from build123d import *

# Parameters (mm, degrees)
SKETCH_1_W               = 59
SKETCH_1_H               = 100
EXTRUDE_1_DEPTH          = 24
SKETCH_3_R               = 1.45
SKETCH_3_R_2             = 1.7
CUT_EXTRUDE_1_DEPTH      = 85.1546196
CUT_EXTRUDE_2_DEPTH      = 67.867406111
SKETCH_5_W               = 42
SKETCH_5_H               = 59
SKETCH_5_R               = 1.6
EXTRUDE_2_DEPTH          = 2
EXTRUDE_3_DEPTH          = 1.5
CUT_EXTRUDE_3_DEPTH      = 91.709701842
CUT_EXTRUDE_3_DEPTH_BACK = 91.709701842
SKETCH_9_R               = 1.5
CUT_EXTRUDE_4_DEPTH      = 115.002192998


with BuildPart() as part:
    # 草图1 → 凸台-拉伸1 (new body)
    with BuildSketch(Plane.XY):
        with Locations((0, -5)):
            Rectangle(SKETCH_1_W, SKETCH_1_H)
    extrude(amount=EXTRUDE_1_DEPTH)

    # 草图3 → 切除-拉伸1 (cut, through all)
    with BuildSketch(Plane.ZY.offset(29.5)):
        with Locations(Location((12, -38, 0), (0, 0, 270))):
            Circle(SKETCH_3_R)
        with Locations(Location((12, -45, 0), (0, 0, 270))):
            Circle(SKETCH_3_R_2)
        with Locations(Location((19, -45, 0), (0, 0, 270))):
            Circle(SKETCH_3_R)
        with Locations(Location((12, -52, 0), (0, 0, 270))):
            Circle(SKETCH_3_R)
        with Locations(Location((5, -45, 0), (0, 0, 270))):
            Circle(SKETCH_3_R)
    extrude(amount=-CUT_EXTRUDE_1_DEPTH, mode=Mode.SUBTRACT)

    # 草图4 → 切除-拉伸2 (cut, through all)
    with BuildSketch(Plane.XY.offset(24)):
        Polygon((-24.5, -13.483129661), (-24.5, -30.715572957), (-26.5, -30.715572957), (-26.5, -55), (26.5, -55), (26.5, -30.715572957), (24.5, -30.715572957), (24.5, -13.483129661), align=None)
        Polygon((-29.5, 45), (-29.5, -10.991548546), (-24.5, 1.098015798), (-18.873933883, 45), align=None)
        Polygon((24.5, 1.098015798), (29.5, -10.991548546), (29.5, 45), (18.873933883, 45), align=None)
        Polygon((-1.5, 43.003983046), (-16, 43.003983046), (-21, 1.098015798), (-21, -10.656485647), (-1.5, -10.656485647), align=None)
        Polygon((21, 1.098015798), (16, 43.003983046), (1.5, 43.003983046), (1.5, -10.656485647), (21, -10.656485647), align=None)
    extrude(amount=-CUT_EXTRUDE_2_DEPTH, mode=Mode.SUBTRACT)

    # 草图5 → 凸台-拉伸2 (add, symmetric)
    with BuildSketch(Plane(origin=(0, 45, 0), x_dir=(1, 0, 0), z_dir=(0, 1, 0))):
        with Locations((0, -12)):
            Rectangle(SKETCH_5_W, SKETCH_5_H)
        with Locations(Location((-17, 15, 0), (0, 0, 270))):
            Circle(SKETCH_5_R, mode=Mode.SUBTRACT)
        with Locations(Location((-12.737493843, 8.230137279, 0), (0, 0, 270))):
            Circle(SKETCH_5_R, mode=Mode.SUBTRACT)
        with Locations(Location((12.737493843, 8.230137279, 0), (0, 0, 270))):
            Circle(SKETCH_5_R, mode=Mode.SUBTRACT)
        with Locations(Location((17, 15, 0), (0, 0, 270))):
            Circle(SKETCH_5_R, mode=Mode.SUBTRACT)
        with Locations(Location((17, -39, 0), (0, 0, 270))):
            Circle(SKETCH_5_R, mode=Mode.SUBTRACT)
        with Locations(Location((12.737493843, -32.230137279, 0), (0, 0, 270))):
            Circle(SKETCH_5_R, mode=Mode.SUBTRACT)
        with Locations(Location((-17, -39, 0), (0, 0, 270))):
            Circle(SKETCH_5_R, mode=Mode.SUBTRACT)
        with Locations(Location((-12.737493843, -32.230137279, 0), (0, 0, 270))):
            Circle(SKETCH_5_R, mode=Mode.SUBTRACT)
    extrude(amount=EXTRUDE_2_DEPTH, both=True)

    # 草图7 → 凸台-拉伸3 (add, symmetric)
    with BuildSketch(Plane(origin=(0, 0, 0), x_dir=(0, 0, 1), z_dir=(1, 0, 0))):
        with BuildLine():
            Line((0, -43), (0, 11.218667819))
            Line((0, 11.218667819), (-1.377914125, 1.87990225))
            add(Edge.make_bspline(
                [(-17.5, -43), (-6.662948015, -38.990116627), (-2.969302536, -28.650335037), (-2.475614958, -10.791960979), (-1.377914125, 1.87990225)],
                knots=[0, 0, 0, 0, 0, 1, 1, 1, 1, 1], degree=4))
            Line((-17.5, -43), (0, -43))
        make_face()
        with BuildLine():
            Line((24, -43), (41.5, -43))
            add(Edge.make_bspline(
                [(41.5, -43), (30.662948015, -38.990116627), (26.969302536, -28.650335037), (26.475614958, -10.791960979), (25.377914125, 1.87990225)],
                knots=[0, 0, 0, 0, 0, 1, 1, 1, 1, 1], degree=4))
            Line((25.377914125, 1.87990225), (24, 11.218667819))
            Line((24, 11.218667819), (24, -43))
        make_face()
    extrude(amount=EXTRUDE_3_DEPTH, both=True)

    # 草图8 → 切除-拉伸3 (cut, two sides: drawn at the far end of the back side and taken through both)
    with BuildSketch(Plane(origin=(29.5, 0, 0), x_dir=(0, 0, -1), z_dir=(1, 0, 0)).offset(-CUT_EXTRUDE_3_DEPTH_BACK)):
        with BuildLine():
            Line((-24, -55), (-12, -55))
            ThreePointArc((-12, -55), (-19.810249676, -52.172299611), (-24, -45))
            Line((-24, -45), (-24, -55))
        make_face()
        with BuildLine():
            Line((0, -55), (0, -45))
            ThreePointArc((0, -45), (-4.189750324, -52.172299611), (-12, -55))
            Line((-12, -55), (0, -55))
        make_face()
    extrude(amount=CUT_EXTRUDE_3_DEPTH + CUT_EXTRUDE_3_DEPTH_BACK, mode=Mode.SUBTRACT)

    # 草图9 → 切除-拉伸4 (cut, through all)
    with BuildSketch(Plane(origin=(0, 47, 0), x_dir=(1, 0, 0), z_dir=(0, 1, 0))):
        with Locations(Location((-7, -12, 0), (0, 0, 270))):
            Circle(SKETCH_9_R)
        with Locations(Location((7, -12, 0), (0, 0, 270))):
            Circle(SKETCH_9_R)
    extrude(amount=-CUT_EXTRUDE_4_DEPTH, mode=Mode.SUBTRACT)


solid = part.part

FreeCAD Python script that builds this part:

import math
import FreeCAD as App
import Part
import Sketcher


def add_polygon(sketch, points):
    """Adds a closed chain of lines whose ends are joined by coincident constraints."""
    first, n = sketch.GeometryCount, len(points)
    for a, b in zip(points, points[1:] + points[:1]):
        sketch.addGeometry(Part.LineSegment(App.Vector(*a, 0), App.Vector(*b, 0)), False)
    for i in range(n):
        sketch.addConstraint(Sketcher.Constraint("Coincident", first + i, 2, first + (i + 1) % n, 1))

doc = App.newDocument("Part")
body = doc.addObject("PartDesign::Body", "Body")

# Sketch on XY plane
sketch1 = body.newObject("Sketcher::SketchObject", "Sketch")
sketch1.AttachmentSupport = (doc.getObject("XY_Plane"), [""])
sketch1.MapMode = "FlatFace"
add_polygon(sketch1, [(-29.5, 45), (-29.5, -55), (29.5, -55), (29.5, 45)])  # lines 0-3
sketch1.addConstraint([
    Sketcher.Constraint("Vertical", 0),
    Sketcher.Constraint("Horizontal", 1),
    Sketcher.Constraint("Vertical", 2),
    Sketcher.Constraint("Horizontal", 3),
    Sketcher.Constraint("DistanceX", 1, 1, 1, 2, 59.0),
    Sketcher.Constraint("DistanceY", 0, 2, 0, 1, 100.0),
    Sketcher.Constraint("DistanceY", 0, 2, -1, 1, 55.0),
    Sketcher.Constraint("DistanceX", 0, 2, -1, 1, 29.5),
])
pad1 = body.newObject("PartDesign::Pad", "Pad")
pad1.Profile = sketch1
pad1.Length = 24

# Sketch on YZ plane
sketch2 = body.newObject("Sketcher::SketchObject", "Sketch001")
sketch2.AttachmentSupport = (doc.getObject("YZ_Plane"), [""])
sketch2.MapMode = "FlatFace"
sketch2.AttachmentOffset = App.Placement(App.Vector(0, 0, -29.5), App.Rotation())
sketch2.addGeometry([
    Part.Circle(App.Vector(-38, 12, 0), App.Vector(0, 0, 1), 1.45),  # 0
    Part.Circle(App.Vector(-45, 12, 0), App.Vector(0, 0, 1), 1.7),  # 1
    Part.Circle(App.Vector(-45, 19, 0), App.Vector(0, 0, 1), 1.45),  # 2
    Part.Circle(App.Vector(-52, 12, 0), App.Vector(0, 0, 1), 1.45),  # 3
    Part.Circle(App.Vector(-45, 5, 0), App.Vector(0, 0, 1), 1.45),  # 4
], False)
sketch2.addConstraint([
    Sketcher.Constraint("Equal", 0, 2),
    Sketcher.Constraint("Equal", 2, 3),
    Sketcher.Constraint("Equal", 3, 4),
    Sketcher.Constraint("Horizontal", 0, 3, 1, 3),
    Sketcher.Constraint("Horizontal", 1, 3, 3, 3),
    Sketcher.Constraint("Vertical", 1, 3, 2, 3),
    Sketcher.Constraint("Vertical", 2, 3, 4, 3),
    Sketcher.Constraint("Diameter", 0, 2.9),
    Sketcher.Constraint("Diameter", 1, 3.4),
    Sketcher.Constraint("DistanceX", 0, 3, -1, 1, 38.0),
    Sketcher.Constraint("DistanceY", -1, 1, 0, 3, 12.0),
    Sketcher.Constraint("DistanceX", 1, 3, -1, 1, 45.0),
    Sketcher.Constraint("DistanceY", -1, 1, 2, 3, 19.0),
    Sketcher.Constraint("DistanceX", 3, 3, -1, 1, 52.0),
    Sketcher.Constraint("DistanceY", -1, 1, 4, 3, 5.0),
])
pocket1 = body.newObject("PartDesign::Pocket", "Pocket")
pocket1.Profile = sketch2
pocket1.Type = "ThroughAll"
pocket1.Reversed = True

# Sketch on XY plane
sketch3 = body.newObject("Sketcher::SketchObject", "Sketch002")
sketch3.AttachmentSupport = (doc.getObject("XY_Plane"), [""])
sketch3.MapMode = "FlatFace"
sketch3.AttachmentOffset = App.Placement(App.Vector(0, 0, 24), App.Rotation())
add_polygon(sketch3, [(-24.5, -13.48313), (-24.5, -30.715573), (-26.5, -30.715573), (-26.5, -55), (26.5, -55), (26.5, -30.715573), (24.5, -30.715573), (24.5, -13.48313)])  # lines 0-7
add_polygon(sketch3, [(-29.5, 45), (-29.5, -10.991549), (-24.5, 1.098016), (-18.873934, 45)])  # lines 8-11
add_polygon(sketch3, [(24.5, 1.098016), (29.5, -10.991549), (29.5, 45), (18.873934, 45)])  # lines 12-15
add_polygon(sketch3, [(-1.5, 43.003983), (-16, 43.003983), (-21, 1.098016), (-21, -10.656486), (-1.5, -10.656486)])  # lines 16-20
add_polygon(sketch3, [(21, 1.098016), (16, 43.003983), (1.5, 43.003983), (1.5, -10.656486), (21, -10.656486)])  # lines 21-25
sketch3.addConstraint([
    Sketcher.Constraint("Vertical", 0),
    Sketcher.Constraint("Horizontal", 1),
    Sketcher.Constraint("Vertical", 2),
    Sketcher.Constraint("Horizontal", 3),
    Sketcher.Constraint("Vertical", 4),
    Sketcher.Constraint("Horizontal", 5),
    Sketcher.Constraint("Vertical", 6),
    Sketcher.Constraint("Horizontal", 7),
    Sketcher.Constraint("Vertical", 8),
    Sketcher.Constraint("Horizontal", 11),
    Sketcher.Constraint("Vertical", 13),
    Sketcher.Constraint("Horizontal", 14),
    Sketcher.Constraint("Horizontal", 16),
    Sketcher.Constraint("Vertical", 18),
    Sketcher.Constraint("Horizontal", 19),
    Sketcher.Constraint("Vertical", 20),
    Sketcher.Constraint("Horizontal", 22),
    Sketcher.Constraint("Vertical", 23),
    Sketcher.Constraint("Horizontal", 24),
    Sketcher.Constraint("Vertical", 25),
    Sketcher.Constraint("Symmetric", 1, 2, 4, 2, -2),
    Sketcher.Constraint("Symmetric", 8, 2, 12, 2, -2),
    Sketcher.Constraint("Symmetric", 10, 2, 14, 2, -2),
    Sketcher.Constraint("Symmetric", 9, 2, 15, 2, -2),
    Sketcher.Constraint("Symmetric", 16, 2, 21, 2, -2),
    Sketcher.Constraint("Symmetric", 19, 2, 23, 2, -2),
    Sketcher.Constraint("Symmetric", 17, 2, 25, 2, -2),
    Sketcher.Constraint("Horizontal", 15, 2, 17, 2),
    Sketcher.Constraint("Vertical", 7, 2, 9, 2),
    Sketcher.Constraint("Vertical", 6, 2, 15, 2),
    Sketcher.Constraint("DistanceX", 1, 2, 1, 1, 2.0),
    Sketcher.Constraint("DistanceX", 3, 1, 3, 2, 53.0),
    Sketcher.Constraint("DistanceX", 16, 2, 16, 1, 14.5),
    Sketcher.Constraint("DistanceX", 19, 1, 19, 2, 19.5),
    Sketcher.Constraint("DistanceY", 2, 2, -1, 1, 55.0),
    Sketcher.Constraint("DistanceY", -1, 1, 10, 2, 45.0),
    Sketcher.Constraint("DistanceX", 16, 2, -1, 1, 16.0),
    Sketcher.Constraint("DistanceX", 8, 2, 7, 2, 5.0),
    Sketcher.Constraint("DistanceY", 18, 2, 18, 1, 11.754501),
    Sketcher.Constraint("Distance", 17, 42.2032),
    Sketcher.Constraint("DistanceY", 8, 2, 8, 1, 55.991549),
    Sketcher.Constraint("Distance", 9, 13.08272),
    Sketcher.Constraint("Distance", 10, 44.261008),
    Sketcher.Constraint("DistanceY", 0, 2, 0, 1, 17.232443),
    Sketcher.Constraint("DistanceY", 2, 2, 2, 1, 24.284427),
])
pocket2 = body.newObject("PartDesign::Pocket", "Pocket001")
pocket2.Profile = sketch3
pocket2.Type = "ThroughAll"

# Sketch on XZ plane
sketch4 = body.newObject("Sketcher::SketchObject", "Sketch003")
sketch4.AttachmentSupport = (doc.getObject("XZ_Plane"), [""])
sketch4.MapMode = "FlatFace"
sketch4.AttachmentOffset = App.Placement(App.Vector(0, 0, -45), App.Rotation())
add_polygon(sketch4, [(-21, -17.5), (-21, 41.5), (21, 41.5), (21, -17.5)])  # lines 0-3
sketch4.addGeometry(Part.Circle(App.Vector(-17, 39, 0), App.Vector(0, 0, 1), 1.6), False)  # 4
sketch4.addGeometry(Part.Circle(App.Vector(-12.737494, 32.230137, 0), App.Vector(0, 0, 1), 1.6), False)  # 5
sketch4.addGeometry(Part.Circle(App.Vector(17, 39, 0), App.Vector(0, 0, 1), 1.6), False)  # 6
sketch4.addGeometry(Part.Circle(App.Vector(12.737494, 32.230137, 0), App.Vector(0, 0, 1), 1.6), False)  # 7
sketch4.addGeometry(Part.Circle(App.Vector(-12.737494, -8.230137, 0), App.Vector(0, 0, 1), 1.6), False)  # 8
sketch4.addGeometry(Part.Circle(App.Vector(-17, -15, 0), App.Vector(0, 0, 1), 1.6), False)  # 9
sketch4.addGeometry(Part.Circle(App.Vector(12.737494, -8.230137, 0), App.Vector(0, 0, 1), 1.6), False)  # 10
sketch4.addGeometry(Part.Circle(App.Vector(17, -15, 0), App.Vector(0, 0, 1), 1.6), False)  # 11
sketch4.addConstraint([
    Sketcher.Constraint("Vertical", 0),
    Sketcher.Constraint("Horizontal", 1),
    Sketcher.Constraint("Vertical", 2),
    Sketcher.Constraint("Horizontal", 3),
    Sketcher.Constraint("Equal", 4, 5),
    Sketcher.Constraint("Equal", 5, 6),
    Sketcher.Constraint("Equal", 6, 7),
    Sketcher.Constraint("Equal", 7, 8),
    Sketcher.Constraint("Equal", 8, 9),
    Sketcher.Constraint("Equal", 9, 10),
    Sketcher.Constraint("Equal", 10, 11),
    Sketcher.Constraint("Symmetric", 4, 3, 6, 3, -2),
    Sketcher.Constraint("Symmetric", 5, 3, 7, 3, -2),
    Sketcher.Constraint("Symmetric", 8, 3, 10, 3, -2),
    Sketcher.Constraint("Symmetric", 9, 3, 11, 3, -2),
    Sketcher.Constraint("Vertical", 5, 3, 8, 3),
    Sketcher.Constraint("Vertical", 4, 3, 9, 3),
    Sketcher.Constraint("Diameter", 4, 3.2),
    Sketcher.Constraint("DistanceX", 1, 1, 1, 2, 42.0),
    Sketcher.Constraint("DistanceY", 0, 1, 0, 2, 59.0),
    Sketcher.Constraint("DistanceX", 4, 3, -1, 1, 17.0),
    Sketcher.Constraint("DistanceY", -1, 1, 4, 3, 39.0),
    Sketcher.Constraint("DistanceY", 9, 3, -1, 1, 15.0),
    Sketcher.Constraint("DistanceX", 0, 2, -1, 1, 21.0),
    Sketcher.Constraint("DistanceY", -1, 1, 0, 2, 41.5),
    Sketcher.Constraint("DistanceX", 5, 3, -1, 1, 12.737494),
    Sketcher.Constraint("DistanceY", -1, 1, 5, 3, 32.230137),
    Sketcher.Constraint("DistanceY", 8, 3, -1, 1, 8.230137),
])
pad2 = body.newObject("PartDesign::Pad", "Pad001")
pad2.Profile = sketch4
pad2.Length = 4
pad2.Midplane = True

# Sketch on YZ plane
sketch5 = body.newObject("Sketcher::SketchObject", "Sketch004")
sketch5.AttachmentSupport = (doc.getObject("YZ_Plane"), [""])
sketch5.MapMode = "FlatFace"
sketch5.addGeometry([
    Part.LineSegment(App.Vector(43, 0, 0), App.Vector(-11.218668, 0, 0)),  # 0
    Part.LineSegment(App.Vector(-11.218668, 0, 0), App.Vector(-1.879902, -1.377914, 0)),  # 1
    Part.BSplineCurve([App.Vector(43, -17.5, 0), App.Vector(38.990117, -6.662948, 0), App.Vector(28.650335, -2.969303, 0), App.Vector(10.791961, -2.475615, 0), App.Vector(-1.879902, -1.377914, 0)], [5, 5], [0, 1], False, 4, [1, 1, 1, 1, 1], False),  # 2
    Part.LineSegment(App.Vector(43, -17.5, 0), App.Vector(43, 0, 0)),  # 3
    Part.LineSegment(App.Vector(43, 24, 0), App.Vector(43, 41.5, 0)),  # 4
    Part.BSplineCurve([App.Vector(43, 41.5, 0), App.Vector(38.990117, 30.662948, 0), App.Vector(28.650335, 26.969303, 0), App.Vector(10.791961, 26.475615, 0), App.Vector(-1.879902, 25.377914, 0)], [5, 5], [0, 1], False, 4, [1, 1, 1, 1, 1], False),  # 5
    Part.LineSegment(App.Vector(-1.879902, 25.377914, 0), App.Vector(-11.218668, 24, 0)),  # 6
    Part.LineSegment(App.Vector(-11.218668, 24, 0), App.Vector(43, 24, 0)),  # 7
], False)
sketch5.addConstraint([
    Sketcher.Constraint("Block", 2),
    Sketcher.Constraint("Block", 5),
    Sketcher.Constraint("Coincident", 0, 2, 1, 1),
    Sketcher.Constraint("Coincident", 1, 2, 2, 2),
    Sketcher.Constraint("Coincident", 2, 1, 3, 1),
    Sketcher.Constraint("Coincident", 3, 2, 0, 1),
    Sketcher.Constraint("Coincident", 4, 2, 5, 1),
    Sketcher.Constraint("Coincident", 5, 2, 6, 1),
    Sketcher.Constraint("Coincident", 6, 2, 7, 1),
    Sketcher.Constraint("Coincident", 7, 2, 4, 1),
    Sketcher.Constraint("Horizontal", 0),
    Sketcher.Constraint("Vertical", 3),
    Sketcher.Constraint("Vertical", 4),
    Sketcher.Constraint("Horizontal", 7),
    Sketcher.Constraint("PointOnObject", 0, 2, -1),
    Sketcher.Constraint("Vertical", 0, 2, 6, 2),
    Sketcher.Constraint("Equal", 3, 4),
    Sketcher.Constraint("DistanceX", 0, 2, 0, 1, 54.218668),
])
pad3 = body.newObject("PartDesign::Pad", "Pad002")
pad3.Profile = sketch5
pad3.Length = 3
pad3.Midplane = True

# Sketch on YZ plane
sketch6 = body.newObject("Sketcher::SketchObject", "Sketch005")
sketch6.AttachmentSupport = (doc.getObject("YZ_Plane"), [""])
sketch6.MapMode = "FlatFace"
sketch6.AttachmentOffset = App.Placement(App.Vector(0, 0, 29.5), App.Rotation())
sketch6.addGeometry([
    Part.LineSegment(App.Vector(-55, 24, 0), App.Vector(-55, 12, 0)),  # 0
    Part.ArcOfCircle(Part.Circle(App.Vector(-42.8, 12, 0), App.Vector(0, 0, 1), 12.2), math.radians(100.388858), math.radians(180)),  # 1
    Part.LineSegment(App.Vector(-45, 24, 0), App.Vector(-55, 24, 0)),  # 2
    Part.LineSegment(App.Vector(-55, 0, 0), App.Vector(-45, 0, 0)),  # 3
    Part.ArcOfCircle(Part.Circle(App.Vector(-42.8, 12, 0), App.Vector(0, 0, 1), 12.2), math.radians(180), math.radians(259.611142)),  # 4
    Part.LineSegment(App.Vector(-55, 12, 0), App.Vector(-55, 0, 0)),  # 5
], False)
sketch6.addConstraint([
    Sketcher.Constraint("Tangent", 0, 2, 1, 2),
    Sketcher.Constraint("Coincident", 1, 1, 2, 1),
    Sketcher.Constraint("Coincident", 2, 2, 0, 1),
    Sketcher.Constraint("Coincident", 3, 2, 4, 2),
    Sketcher.Constraint("Tangent", 4, 1, 5, 1),
    Sketcher.Constraint("Coincident", 5, 2, 3, 1),
    Sketcher.Constraint("Vertical", 0),
    Sketcher.Constraint("Horizontal", 2),
    Sketcher.Constraint("Horizontal", 3),
    Sketcher.Constraint("Vertical", 5),
    Sketcher.Constraint("Coincident", 4, 3, 1, 3),
    Sketcher.Constraint("Equal", 1, 4),
    Sketcher.Constraint("PointOnObject", 3, 2, -1),
    Sketcher.Constraint("Vertical", 1, 1, 3, 2),
    Sketcher.Constraint("Radius", 1, 12.2),
    Sketcher.Constraint("DistanceX", 2, 2, 2, 1, 10.0),
    Sketcher.Constraint("DistanceX", 0, 2, -1, 1, 55.0),
])
pocket3 = body.newObject("PartDesign::Pocket", "Pocket002")
pocket3.Profile = sketch6
pocket3.Type = "ThroughAll"
pocket3.Midplane = True

# Sketch on XZ plane
sketch7 = body.newObject("Sketcher::SketchObject", "Sketch006")
sketch7.AttachmentSupport = (doc.getObject("XZ_Plane"), [""])
sketch7.MapMode = "FlatFace"
sketch7.AttachmentOffset = App.Placement(App.Vector(0, 0, -47), App.Rotation())
sketch7.addGeometry([
    Part.Circle(App.Vector(-7, 12, 0), App.Vector(0, 0, 1), 1.5),
    Part.Circle(App.Vector(7, 12, 0), App.Vector(0, 0, 1), 1.5),
], False)
sketch7.addConstraint([
    Sketcher.Constraint("Equal", 0, 1),
    Sketcher.Constraint("Symmetric", 0, 3, 1, 3, -2),
    Sketcher.Constraint("Diameter", 0, 3.0),
    Sketcher.Constraint("DistanceX", 0, 3, -1, 1, 7.0),
    Sketcher.Constraint("DistanceY", -1, 1, 0, 3, 12.0),
])
pocket4 = body.newObject("PartDesign::Pocket", "Pocket003")
pocket4.Profile = sketch7
pocket4.Type = "ThroughAll"
pocket4.Reversed = True

doc.recompute()
